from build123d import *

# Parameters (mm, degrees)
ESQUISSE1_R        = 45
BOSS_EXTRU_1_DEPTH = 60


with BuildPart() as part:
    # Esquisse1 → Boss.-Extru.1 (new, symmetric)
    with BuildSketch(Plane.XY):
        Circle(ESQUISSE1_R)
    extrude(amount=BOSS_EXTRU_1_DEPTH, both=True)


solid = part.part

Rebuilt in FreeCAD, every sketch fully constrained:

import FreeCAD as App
import Part
import Sketcher

V = App.Vector
Q = App.Units.Quantity

doc = App.newDocument("Part")
body = doc.addObject("PartDesign::Body", "Body")

sketch1 = body.newObject("Sketcher::SketchObject", "Sketch")
sketch1.AttachmentSupport = (doc.getObject("XY_Plane"), [""])
sketch1.MapMode = "FlatFace"
sketch1.addGeometry(Part.Circle(V(0, 0, 0), V(0, 0, 1), 45), False)
sketch1.addConstraint(Sketcher.Constraint("Coincident", 0, 3, -1, 1))
sketch1.addConstraint(Sketcher.Constraint("Diameter", 0, Q("90 mm")))
pad1 = body.newObject("PartDesign::Pad", "Pad")
pad1.Profile = sketch1
pad1.Length = 120
pad1.Midplane = True

doc.recompute()
